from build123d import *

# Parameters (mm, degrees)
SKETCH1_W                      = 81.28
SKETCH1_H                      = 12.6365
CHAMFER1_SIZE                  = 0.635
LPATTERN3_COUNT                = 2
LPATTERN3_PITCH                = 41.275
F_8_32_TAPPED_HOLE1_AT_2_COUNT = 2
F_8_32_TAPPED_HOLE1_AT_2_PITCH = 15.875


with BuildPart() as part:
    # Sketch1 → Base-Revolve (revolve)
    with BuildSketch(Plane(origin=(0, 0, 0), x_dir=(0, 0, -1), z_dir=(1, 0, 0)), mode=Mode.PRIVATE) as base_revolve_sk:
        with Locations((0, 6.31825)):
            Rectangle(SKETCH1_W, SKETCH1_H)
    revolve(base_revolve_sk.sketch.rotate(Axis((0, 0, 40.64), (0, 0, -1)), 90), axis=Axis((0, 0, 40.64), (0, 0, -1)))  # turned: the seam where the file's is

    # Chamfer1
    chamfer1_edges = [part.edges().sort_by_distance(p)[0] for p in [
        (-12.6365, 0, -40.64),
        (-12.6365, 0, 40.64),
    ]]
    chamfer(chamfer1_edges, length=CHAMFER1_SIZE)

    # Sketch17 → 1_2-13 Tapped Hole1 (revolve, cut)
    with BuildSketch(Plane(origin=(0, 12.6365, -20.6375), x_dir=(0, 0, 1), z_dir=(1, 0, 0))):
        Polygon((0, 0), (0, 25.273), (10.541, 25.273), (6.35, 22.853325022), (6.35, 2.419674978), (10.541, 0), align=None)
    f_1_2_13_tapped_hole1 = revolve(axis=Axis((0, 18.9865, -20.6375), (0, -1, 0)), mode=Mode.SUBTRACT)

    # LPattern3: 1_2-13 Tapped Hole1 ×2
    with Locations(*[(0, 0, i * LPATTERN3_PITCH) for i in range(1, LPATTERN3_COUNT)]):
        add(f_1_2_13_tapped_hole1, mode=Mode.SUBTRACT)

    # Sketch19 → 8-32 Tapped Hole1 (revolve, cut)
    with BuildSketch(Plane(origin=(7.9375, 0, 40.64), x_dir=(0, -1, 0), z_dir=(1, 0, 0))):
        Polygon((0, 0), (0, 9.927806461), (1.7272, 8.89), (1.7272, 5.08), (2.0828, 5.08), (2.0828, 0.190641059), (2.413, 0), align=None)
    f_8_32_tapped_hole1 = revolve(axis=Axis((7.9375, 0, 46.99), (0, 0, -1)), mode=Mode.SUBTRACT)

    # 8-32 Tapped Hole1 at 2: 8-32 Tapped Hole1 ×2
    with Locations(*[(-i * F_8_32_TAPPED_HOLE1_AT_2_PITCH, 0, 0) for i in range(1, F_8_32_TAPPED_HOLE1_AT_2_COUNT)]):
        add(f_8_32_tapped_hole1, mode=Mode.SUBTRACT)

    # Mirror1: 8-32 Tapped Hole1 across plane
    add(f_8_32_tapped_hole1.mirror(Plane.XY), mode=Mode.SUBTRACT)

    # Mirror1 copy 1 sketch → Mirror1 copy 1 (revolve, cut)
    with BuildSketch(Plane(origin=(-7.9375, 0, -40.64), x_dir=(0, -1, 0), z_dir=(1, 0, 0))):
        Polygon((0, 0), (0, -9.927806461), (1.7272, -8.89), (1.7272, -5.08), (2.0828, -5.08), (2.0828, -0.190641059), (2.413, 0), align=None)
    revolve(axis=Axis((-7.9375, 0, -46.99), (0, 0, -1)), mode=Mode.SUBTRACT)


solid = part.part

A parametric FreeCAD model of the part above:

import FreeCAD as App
import Part
import Sketcher
from FreeCAD import Vector
Q = App.Units.Quantity


def edges_at(feature, points):
    """Names of the edges that pass closest to the given points."""
    edges = feature.Shape.Edges
    near = lambda p: min(range(len(edges)), key=lambda i: edges[i].distToShape(Part.Vertex(*p))[0])
    return sorted({f"Edge{near(p) + 1}" for p in points})

doc = App.newDocument("Part")
body = doc.addObject("PartDesign::Body", "Body")

# Sketch on YZ plane
sketch1 = body.newObject("Sketcher::SketchObject", "Sketch")
sketch1.AttachmentSupport = (doc.getObject("YZ_Plane"), [""])
sketch1.MapMode = "FlatFace"
sketch1.addGeometry(Part.LineSegment(Vector(12.6365, 40.64, 0), Vector(0, 40.64, 0)), False)
sketch1.addGeometry(Part.LineSegment(Vector(0, 40.64, 0), Vector(0, -40.64, 0)), False)
sketch1.addGeometry(Part.LineSegment(Vector(0, -40.64, 0), Vector(12.6365, -40.64, 0)), False)
sketch1.addGeometry(Part.LineSegment(Vector(12.6365, -40.64, 0), Vector(12.6365, 40.64, 0)), False)
sketch1.addConstraint(Sketcher.Constraint("Coincident", 0, 2, 1, 1))
sketch1.addConstraint(Sketcher.Constraint("Coincident", 1, 2, 2, 1))
sketch1.addConstraint(Sketcher.Constraint("Coincident", 2, 2, 3, 1))
sketch1.addConstraint(Sketcher.Constraint("Coincident", 3, 2, 0, 1))
sketch1.addConstraint(Sketcher.Constraint("Horizontal", 0))
sketch1.addConstraint(Sketcher.Constraint("Vertical", 1))
sketch1.addConstraint(Sketcher.Constraint("Horizontal", 2))
sketch1.addConstraint(Sketcher.Constraint("Vertical", 3))
sketch1.addConstraint(Sketcher.Constraint("Symmetric", 0, 2, 1, 2, -1, 1))
sketch1.addConstraint(Sketcher.Constraint("DistanceY", 1, 2, 1, 1, Q("3.2 in")))
sketch1.addConstraint(Sketcher.Constraint("DistanceX", 0, 2, 0, 1, Q("0.4975 in")))
revolution = body.newObject("PartDesign::Revolution", "Revolution")
revolution.Profile = sketch1
revolution.ReferenceAxis = (sketch1, ["V_Axis"])
revolution.Angle = 360
doc.recompute()

chamfer = body.newObject("PartDesign::Chamfer", "Chamfer")
chamfer.Base = (revolution, edges_at(revolution, [(-12.636, 0, -40.64), (-12.636, 0, 40.64)]))
chamfer.Size = Q("0.025 in")

# Sketch on YZ plane
sketch2 = body.newObject("Sketcher::SketchObject", "Sketch001")
sketch2.AttachmentSupport = (doc.getObject("YZ_Plane"), [""])
sketch2.MapMode = "FlatFace"
sketch2.addGeometry(Part.LineSegment(Vector(-12.6365, -20.6375, 0), Vector(12.6365, -20.6375, 0)), False)
sketch2.addGeometry(Part.LineSegment(Vector(12.6365, -20.6375, 0), Vector(12.6365, -10.0965, 0)), False)
sketch2.addGeometry(Part.LineSegment(Vector(12.6365, -10.0965, 0), Vector(10.216825, -14.2875, 0)), False)
sketch2.addGeometry(Part.LineSegment(Vector(10.216825, -14.2875, 0), Vector(-10.216825, -14.2875, 0)), False)
sketch2.addGeometry(Part.LineSegment(Vector(-10.216825, -14.2875, 0), Vector(-12.6365, -10.0965, 0)), False)
sketch2.addGeometry(Part.LineSegment(Vector(-12.6365, -10.0965, 0), Vector(-12.6365, -20.6375, 0)), False)
sketch2.addGeometry(Part.LineSegment(Vector(12.6365, -20.6375, 0), Vector(-12.6365, -20.6375, 0)), True)  # axis
sketch2.addConstraint(Sketcher.Constraint("Coincident", 0, 2, 1, 1))
sketch2.addConstraint(Sketcher.Constraint("Coincident", 1, 2, 2, 1))
sketch2.addConstraint(Sketcher.Constraint("Coincident", 2, 2, 3, 1))
sketch2.addConstraint(Sketcher.Constraint("Coincident", 3, 2, 4, 1))
sketch2.addConstraint(Sketcher.Constraint("Coincident", 4, 2, 5, 1))
sketch2.addConstraint(Sketcher.Constraint("Coincident", 5, 2, 0, 1))
sketch2.addConstraint(Sketcher.Constraint("Horizontal", 0))
sketch2.addConstraint(Sketcher.Constraint("Vertical", 1))
sketch2.addConstraint(Sketcher.Constraint("Horizontal", 3))
sketch2.addConstraint(Sketcher.Constraint("Vertical", 5))
sketch2.addConstraint(Sketcher.Constraint("Horizontal", 6))
sketch2.addConstraint(Sketcher.Constraint("Coincident", 6, 1, 0, 2))
sketch2.addConstraint(Sketcher.Constraint("Symmetric", 1, 2, 4, 2, -2))
sketch2.addConstraint(Sketcher.Constraint("Vertical", 4, 2, 6, 2))
sketch2.addConstraint(Sketcher.Constraint("Equal", 2, 4))
sketch2.addConstraint(Sketcher.Constraint("Angle", 2, Q("-120 deg")))
sketch2.addConstraint(Sketcher.Constraint("DistanceX", 0, 1, 0, 2, Q("0.995 in")))
sketch2.addConstraint(Sketcher.Constraint("DistanceY", 1, 1, 1, 2, Q("0.415 in")))
sketch2.addConstraint(Sketcher.Constraint("DistanceY", 0, 2, 2, 2, Q("0.25 in")))
sketch2.addConstraint(Sketcher.Constraint("DistanceY", 0, 2, -1, 1, Q("0.8125 in")))
groove = body.newObject("PartDesign::Groove", "Groove")
groove.Profile = sketch2
groove.ReferenceAxis = (sketch2, ["Axis0"])
groove.Angle = 360
doc.recompute()

linearpattern = body.newObject("PartDesign::LinearPattern", "LinearPattern")
linearpattern.Originals = [groove]
linearpattern.Direction = (doc.getObject("Z_Axis"), [""])
linearpattern.Mode = "offset"
linearpattern.Offset = Q("1.625 in")
linearpattern.Occurrences = 2
body.Tip = linearpattern

# Sketch on YZ plane
sketch3 = body.newObject("Sketcher::SketchObject", "Sketch002")
sketch3.AttachmentSupport = (doc.getObject("YZ_Plane"), [""])
sketch3.MapMode = "FlatFace"
sketch3.AttachmentOffset = App.Placement(Vector(0, 0, 0.3125 * 25.4), App.Rotation())
sketch3.addGeometry(Part.LineSegment(Vector(0, 30.712194, 0), Vector(0, 40.64, 0)), False)
sketch3.addGeometry(Part.LineSegment(Vector(0, 40.64, 0), Vector(-2.413, 40.64, 0)), False)
sketch3.addGeometry(Part.LineSegment(Vector(-2.413, 40.64, 0), Vector(-2.0828, 40.449359, 0)), False)
sketch3.addGeometry(Part.LineSegment(Vector(-2.0828, 40.449359, 0), Vector(-2.0828, 35.56, 0)), False)
sketch3.addGeometry(Part.LineSegment(Vector(-2.0828, 35.56, 0), Vector(-1.7272, 35.56, 0)), False)
sketch3.addGeometry(Part.LineSegment(Vector(-1.7272, 35.56, 0), Vector(-1.7272, 31.75, 0)), False)
sketch3.addGeometry(Part.LineSegment(Vector(-1.7272, 31.75, 0), Vector(0, 30.712194, 0)), False)
sketch3.addConstraint(Sketcher.Constraint("Coincident", 0, 2, 1, 1))
sketch3.addConstraint(Sketcher.Constraint("Coincident", 1, 2, 2, 1))
sketch3.addConstraint(Sketcher.Constraint("Coincident", 2, 2, 3, 1))
sketch3.addConstraint(Sketcher.Constraint("Coincident", 3, 2, 4, 1))
sketch3.addConstraint(Sketcher.Constraint("Coincident", 4, 2, 5, 1))
sketch3.addConstraint(Sketcher.Constraint("Coincident", 5, 2, 6, 1))
sketch3.addConstraint(Sketcher.Constraint("Coincident", 6, 2, 0, 1))
sketch3.addConstraint(Sketcher.Constraint("Vertical", 0))
sketch3.addConstraint(Sketcher.Constraint("Horizontal", 1))
sketch3.addConstraint(Sketcher.Constraint("Vertical", 3))
sketch3.addConstraint(Sketcher.Constraint("Horizontal", 4))
sketch3.addConstraint(Sketcher.Constraint("Vertical", 5))
sketch3.addConstraint(Sketcher.Constraint("PointOnObject", 0, 2, -2))
sketch3.addConstraint(Sketcher.Constraint("Angle", 2, Q("-30 deg")))
sketch3.addConstraint(Sketcher.Constraint("Angle", 6, Q("-31 deg")))
sketch3.addConstraint(Sketcher.Constraint("DistanceY", 5, 2, 5, 1, Q("0.15 in")))
sketch3.addConstraint(Sketcher.Constraint("DistanceY", -1, 1, 0, 2, Q("1.6 in")))
sketch3.addConstraint(Sketcher.Constraint("DistanceY", -1, 1, 3, 2, Q("1.4 in")))
sketch3.addConstraint(Sketcher.Constraint("DistanceX", 1, 2, 1, 1, Q("0.095 in")))
sketch3.addConstraint(Sketcher.Constraint("DistanceX", 4, 1, 4, 2, Q("0.014 in")))
sketch3.addConstraint(Sketcher.Constraint("DistanceX", 2, 2, -1, 1, Q("0.082 in")))
groove2 = body.newObject("PartDesign::Groove", "Groove001")
groove2.Profile = sketch3
groove2.ReferenceAxis = (sketch3, ["V_Axis"])
groove2.Angle = 360
doc.recompute()

linearpattern2 = body.newObject("PartDesign::LinearPattern", "LinearPattern001")
linearpattern2.Originals = [groove2]
linearpattern2.Direction = (doc.getObject("X_Axis"), [""])
linearpattern2.Mode = "offset"
linearpattern2.Offset = Q("0.625 in")
linearpattern2.Occurrences = 2
linearpattern2.Reversed = True
body.Tip = linearpattern2
doc.recompute()

mirrored = body.newObject("PartDesign::Mirrored", "Mirrored")
mirrored.Originals = [groove2]
mirrored.MirrorPlane = (doc.getObject("XY_Plane"), [""])
body.Tip = mirrored

# Sketch on YZ plane
sketch4 = body.newObject("Sketcher::SketchObject", "Sketch003")
sketch4.AttachmentSupport = (doc.getObject("YZ_Plane"), [""])
sketch4.MapMode = "FlatFace"
sketch4.AttachmentOffset = App.Placement(Vector(0, 0, -0.3125 * 25.4), App.Rotation())
sketch4.addGeometry(Part.LineSegment(Vector(0, -40.64, 0), Vector(0, -30.712194, 0)), False)
sketch4.addGeometry(Part.LineSegment(Vector(0, -30.712194, 0), Vector(-1.7272, -31.75, 0)), False)
sketch4.addGeometry(Part.LineSegment(Vector(-1.7272, -31.75, 0), Vector(-1.7272, -35.56, 0)), False)
sketch4.addGeometry(Part.LineSegment(Vector(-1.7272, -35.56, 0), Vector(-2.0828, -35.56, 0)), False)
sketch4.addGeometry(Part.LineSegment(Vector(-2.0828, -35.56, 0), Vector(-2.0828, -40.449359, 0)), False)
sketch4.addGeometry(Part.LineSegment(Vector(-2.0828, -40.449359, 0), Vector(-2.413, -40.64, 0)), False)
sketch4.addGeometry(Part.LineSegment(Vector(-2.413, -40.64, 0), Vector(0, -40.64, 0)), False)
sketch4.addConstraint(Sketcher.Constraint("Coincident", 0, 2, 1, 1))
sketch4.addConstraint(Sketcher.Constraint("Coincident", 1, 2, 2, 1))
sketch4.addConstraint(Sketcher.Constraint("Coincident", 2, 2, 3, 1))
sketch4.addConstraint(Sketcher.Constraint("Coincident", 3, 2, 4, 1))
sketch4.addConstraint(Sketcher.Constraint("Coincident", 4, 2, 5, 1))
sketch4.addConstraint(Sketcher.Constraint("Coincident", 5, 2, 6, 1))
sketch4.addConstraint(Sketcher.Constraint("Coincident", 6, 2, 0, 1))
sketch4.addConstraint(Sketcher.Constraint("Vertical", 0))
sketch4.addConstraint(Sketcher.Constraint("Vertical", 2))
sketch4.addConstraint(Sketcher.Constraint("Horizontal", 3))
sketch4.addConstraint(Sketcher.Constraint("Vertical", 4))
sketch4.addConstraint(Sketcher.Constraint("Horizontal", 6))
sketch4.addConstraint(Sketcher.Constraint("PointOnObject", 0, 2, -2))
sketch4.addConstraint(Sketcher.Constraint("Angle", 1, Q("-149 deg")))
sketch4.addConstraint(Sketcher.Constraint("Angle", 5, Q("-150 deg")))
sketch4.addConstraint(Sketcher.Constraint("DistanceY", 2, 2, 2, 1, Q("0.15 in")))
sketch4.addConstraint(Sketcher.Constraint("DistanceY", 2, 2, -1, 1, Q("1.4 in")))
sketch4.addConstraint(Sketcher.Constraint("DistanceY", 5, 2, -1, 1, Q("1.6 in")))
sketch4.addConstraint(Sketcher.Constraint("DistanceX", 3, 2, 3, 1, Q("0.014 in")))
sketch4.addConstraint(Sketcher.Constraint("DistanceX", 6, 1, 6, 2, Q("0.095 in")))
sketch4.addConstraint(Sketcher.Constraint("DistanceX", 1, 2, -1, 1, Q("0.068 in")))
groove3 = body.newObject("PartDesign::Groove", "Groove002")
groove3.Profile = sketch4
groove3.ReferenceAxis = (sketch4, ["V_Axis"])
groove3.Angle = 360

doc.recompute()
